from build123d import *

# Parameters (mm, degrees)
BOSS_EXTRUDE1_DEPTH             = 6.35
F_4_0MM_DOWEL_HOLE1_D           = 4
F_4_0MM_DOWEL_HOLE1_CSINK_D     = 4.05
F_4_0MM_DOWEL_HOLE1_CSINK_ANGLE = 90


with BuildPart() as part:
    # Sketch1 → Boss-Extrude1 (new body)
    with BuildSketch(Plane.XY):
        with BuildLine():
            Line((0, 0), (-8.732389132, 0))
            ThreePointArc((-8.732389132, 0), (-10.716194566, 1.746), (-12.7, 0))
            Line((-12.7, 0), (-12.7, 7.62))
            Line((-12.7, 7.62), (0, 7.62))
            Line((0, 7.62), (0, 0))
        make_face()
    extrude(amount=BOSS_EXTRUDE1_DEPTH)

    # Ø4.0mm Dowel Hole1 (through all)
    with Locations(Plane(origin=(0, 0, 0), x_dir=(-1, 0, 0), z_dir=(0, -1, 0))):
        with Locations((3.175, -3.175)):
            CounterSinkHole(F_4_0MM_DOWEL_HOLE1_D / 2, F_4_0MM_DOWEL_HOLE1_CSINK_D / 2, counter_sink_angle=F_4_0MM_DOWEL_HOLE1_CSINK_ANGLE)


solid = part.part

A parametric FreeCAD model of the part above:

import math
import FreeCAD as App
import Part
import Sketcher
from FreeCAD import Vector
Q = App.Units.Quantity

doc = App.newDocument("Part")
params = doc.addObject("Spreadsheet::Sheet", "Params")
for row, (alias, value) in enumerate([
    ("sketch1_width", "0.5 in"),
    ("sketch1_height", "0.3 in"),
    ("pad1_length", "0.25 in"),
    ("hole_diameter", "4 mm"),
    ("hole_csink_diameter", "4.05 mm"),
], start=1):
    params.set(f"A{row}", alias)
    params.set(f"B{row}", "=" + value)
    params.setAlias(f"B{row}", alias)

body = doc.addObject("PartDesign::Body", "Body")

# Sketch on XY plane
sketch1 = body.newObject("Sketcher::SketchObject", "Sketch")
sketch1.AttachmentSupport = (doc.getObject("XY_Plane"), [""])
sketch1.MapMode = "FlatFace"
sketch1.addGeometry([
    Part.LineSegment(Vector(-8.7, 0, 0), Vector(0, 0, 0)),  # 0
    Part.LineSegment(Vector(0, 0, 0), Vector(0, 7.6, 0)),  # 1
    Part.LineSegment(Vector(0, 7.6, 0), Vector(-12.7, 7.6, 0)),  # 2
    Part.LineSegment(Vector(-12.7, 7.6, 0), Vector(-12.7, 0, 0)),  # 3
    Part.ArcOfCircle(Part.Circle(Vector(-10.7, -0.3, 0), Vector(0, 0, 1), 2), math.radians(7), math.radians(173)),  # 4
], False)
sketch1.addConstraint([
    Sketcher.Constraint("Coincident", 0, 2, 1, 1),
    Sketcher.Constraint("Coincident", 1, 2, 2, 1),
    Sketcher.Constraint("Coincident", 2, 2, 3, 1),
    Sketcher.Constraint("Coincident", 3, 2, 4, 2),
    Sketcher.Constraint("Coincident", 4, 1, 0, 1),
    Sketcher.Constraint("Horizontal", 0),
    Sketcher.Constraint("Vertical", 1),
    Sketcher.Constraint("Horizontal", 2),
    Sketcher.Constraint("Vertical", 3),
    Sketcher.Constraint("Coincident", 0, 2, -1, 1),
    Sketcher.Constraint("PointOnObject", 3, 2, -1),
    Sketcher.Constraint("DistanceX", 2, 2, 2, 1, Q("0.5 in")),
    Sketcher.Constraint("DistanceY", 1, 1, 1, 2, Q("0.3 in")),
    Sketcher.Constraint("DistanceY", 4, 3, -1, 1, Q("0.01 in")),
    Sketcher.Constraint("Radius", 4, 2.0),
])
sketch1.setExpression("Constraints[11]", "Params.sketch1_width")
sketch1.setExpression("Constraints[12]", "Params.sketch1_height")
pad1 = body.newObject("PartDesign::Pad", "Pad")
pad1.Profile = sketch1
pad1.setExpression("Length", "Params.pad1_length")

# Sketch on XZ plane
sketch2 = body.newObject("Sketcher::SketchObject", "Sketch001")
sketch2.AttachmentSupport = (doc.getObject("XZ_Plane"), [""])
sketch2.MapMode = "FlatFace"
sketch2.addGeometry(Part.Circle(Vector(-3.2, 3.2, 0), Vector(0, 0, 1), 2), False)
sketch2.addConstraint([
    Sketcher.Constraint("Diameter", 0, 4.0),
    Sketcher.Constraint("DistanceX", 0, 3, -1, 1, Q("0.125 in")),
    Sketcher.Constraint("DistanceY", -1, 1, 0, 3, Q("0.125 in")),
])
doc.recompute()
hole = body.newObject("PartDesign::Hole", "Hole")
hole.Profile = sketch2
hole.ThreadType = "None"
hole.setExpression("Diameter", "Params.hole_diameter")
hole.DepthType = "ThroughAll"
hole.HoleCutType = "Countersink"
hole.setExpression("HoleCutDiameter", "Params.hole_csink_diameter")
hole.HoleCutCountersinkAngle = 90

doc.recompute()
